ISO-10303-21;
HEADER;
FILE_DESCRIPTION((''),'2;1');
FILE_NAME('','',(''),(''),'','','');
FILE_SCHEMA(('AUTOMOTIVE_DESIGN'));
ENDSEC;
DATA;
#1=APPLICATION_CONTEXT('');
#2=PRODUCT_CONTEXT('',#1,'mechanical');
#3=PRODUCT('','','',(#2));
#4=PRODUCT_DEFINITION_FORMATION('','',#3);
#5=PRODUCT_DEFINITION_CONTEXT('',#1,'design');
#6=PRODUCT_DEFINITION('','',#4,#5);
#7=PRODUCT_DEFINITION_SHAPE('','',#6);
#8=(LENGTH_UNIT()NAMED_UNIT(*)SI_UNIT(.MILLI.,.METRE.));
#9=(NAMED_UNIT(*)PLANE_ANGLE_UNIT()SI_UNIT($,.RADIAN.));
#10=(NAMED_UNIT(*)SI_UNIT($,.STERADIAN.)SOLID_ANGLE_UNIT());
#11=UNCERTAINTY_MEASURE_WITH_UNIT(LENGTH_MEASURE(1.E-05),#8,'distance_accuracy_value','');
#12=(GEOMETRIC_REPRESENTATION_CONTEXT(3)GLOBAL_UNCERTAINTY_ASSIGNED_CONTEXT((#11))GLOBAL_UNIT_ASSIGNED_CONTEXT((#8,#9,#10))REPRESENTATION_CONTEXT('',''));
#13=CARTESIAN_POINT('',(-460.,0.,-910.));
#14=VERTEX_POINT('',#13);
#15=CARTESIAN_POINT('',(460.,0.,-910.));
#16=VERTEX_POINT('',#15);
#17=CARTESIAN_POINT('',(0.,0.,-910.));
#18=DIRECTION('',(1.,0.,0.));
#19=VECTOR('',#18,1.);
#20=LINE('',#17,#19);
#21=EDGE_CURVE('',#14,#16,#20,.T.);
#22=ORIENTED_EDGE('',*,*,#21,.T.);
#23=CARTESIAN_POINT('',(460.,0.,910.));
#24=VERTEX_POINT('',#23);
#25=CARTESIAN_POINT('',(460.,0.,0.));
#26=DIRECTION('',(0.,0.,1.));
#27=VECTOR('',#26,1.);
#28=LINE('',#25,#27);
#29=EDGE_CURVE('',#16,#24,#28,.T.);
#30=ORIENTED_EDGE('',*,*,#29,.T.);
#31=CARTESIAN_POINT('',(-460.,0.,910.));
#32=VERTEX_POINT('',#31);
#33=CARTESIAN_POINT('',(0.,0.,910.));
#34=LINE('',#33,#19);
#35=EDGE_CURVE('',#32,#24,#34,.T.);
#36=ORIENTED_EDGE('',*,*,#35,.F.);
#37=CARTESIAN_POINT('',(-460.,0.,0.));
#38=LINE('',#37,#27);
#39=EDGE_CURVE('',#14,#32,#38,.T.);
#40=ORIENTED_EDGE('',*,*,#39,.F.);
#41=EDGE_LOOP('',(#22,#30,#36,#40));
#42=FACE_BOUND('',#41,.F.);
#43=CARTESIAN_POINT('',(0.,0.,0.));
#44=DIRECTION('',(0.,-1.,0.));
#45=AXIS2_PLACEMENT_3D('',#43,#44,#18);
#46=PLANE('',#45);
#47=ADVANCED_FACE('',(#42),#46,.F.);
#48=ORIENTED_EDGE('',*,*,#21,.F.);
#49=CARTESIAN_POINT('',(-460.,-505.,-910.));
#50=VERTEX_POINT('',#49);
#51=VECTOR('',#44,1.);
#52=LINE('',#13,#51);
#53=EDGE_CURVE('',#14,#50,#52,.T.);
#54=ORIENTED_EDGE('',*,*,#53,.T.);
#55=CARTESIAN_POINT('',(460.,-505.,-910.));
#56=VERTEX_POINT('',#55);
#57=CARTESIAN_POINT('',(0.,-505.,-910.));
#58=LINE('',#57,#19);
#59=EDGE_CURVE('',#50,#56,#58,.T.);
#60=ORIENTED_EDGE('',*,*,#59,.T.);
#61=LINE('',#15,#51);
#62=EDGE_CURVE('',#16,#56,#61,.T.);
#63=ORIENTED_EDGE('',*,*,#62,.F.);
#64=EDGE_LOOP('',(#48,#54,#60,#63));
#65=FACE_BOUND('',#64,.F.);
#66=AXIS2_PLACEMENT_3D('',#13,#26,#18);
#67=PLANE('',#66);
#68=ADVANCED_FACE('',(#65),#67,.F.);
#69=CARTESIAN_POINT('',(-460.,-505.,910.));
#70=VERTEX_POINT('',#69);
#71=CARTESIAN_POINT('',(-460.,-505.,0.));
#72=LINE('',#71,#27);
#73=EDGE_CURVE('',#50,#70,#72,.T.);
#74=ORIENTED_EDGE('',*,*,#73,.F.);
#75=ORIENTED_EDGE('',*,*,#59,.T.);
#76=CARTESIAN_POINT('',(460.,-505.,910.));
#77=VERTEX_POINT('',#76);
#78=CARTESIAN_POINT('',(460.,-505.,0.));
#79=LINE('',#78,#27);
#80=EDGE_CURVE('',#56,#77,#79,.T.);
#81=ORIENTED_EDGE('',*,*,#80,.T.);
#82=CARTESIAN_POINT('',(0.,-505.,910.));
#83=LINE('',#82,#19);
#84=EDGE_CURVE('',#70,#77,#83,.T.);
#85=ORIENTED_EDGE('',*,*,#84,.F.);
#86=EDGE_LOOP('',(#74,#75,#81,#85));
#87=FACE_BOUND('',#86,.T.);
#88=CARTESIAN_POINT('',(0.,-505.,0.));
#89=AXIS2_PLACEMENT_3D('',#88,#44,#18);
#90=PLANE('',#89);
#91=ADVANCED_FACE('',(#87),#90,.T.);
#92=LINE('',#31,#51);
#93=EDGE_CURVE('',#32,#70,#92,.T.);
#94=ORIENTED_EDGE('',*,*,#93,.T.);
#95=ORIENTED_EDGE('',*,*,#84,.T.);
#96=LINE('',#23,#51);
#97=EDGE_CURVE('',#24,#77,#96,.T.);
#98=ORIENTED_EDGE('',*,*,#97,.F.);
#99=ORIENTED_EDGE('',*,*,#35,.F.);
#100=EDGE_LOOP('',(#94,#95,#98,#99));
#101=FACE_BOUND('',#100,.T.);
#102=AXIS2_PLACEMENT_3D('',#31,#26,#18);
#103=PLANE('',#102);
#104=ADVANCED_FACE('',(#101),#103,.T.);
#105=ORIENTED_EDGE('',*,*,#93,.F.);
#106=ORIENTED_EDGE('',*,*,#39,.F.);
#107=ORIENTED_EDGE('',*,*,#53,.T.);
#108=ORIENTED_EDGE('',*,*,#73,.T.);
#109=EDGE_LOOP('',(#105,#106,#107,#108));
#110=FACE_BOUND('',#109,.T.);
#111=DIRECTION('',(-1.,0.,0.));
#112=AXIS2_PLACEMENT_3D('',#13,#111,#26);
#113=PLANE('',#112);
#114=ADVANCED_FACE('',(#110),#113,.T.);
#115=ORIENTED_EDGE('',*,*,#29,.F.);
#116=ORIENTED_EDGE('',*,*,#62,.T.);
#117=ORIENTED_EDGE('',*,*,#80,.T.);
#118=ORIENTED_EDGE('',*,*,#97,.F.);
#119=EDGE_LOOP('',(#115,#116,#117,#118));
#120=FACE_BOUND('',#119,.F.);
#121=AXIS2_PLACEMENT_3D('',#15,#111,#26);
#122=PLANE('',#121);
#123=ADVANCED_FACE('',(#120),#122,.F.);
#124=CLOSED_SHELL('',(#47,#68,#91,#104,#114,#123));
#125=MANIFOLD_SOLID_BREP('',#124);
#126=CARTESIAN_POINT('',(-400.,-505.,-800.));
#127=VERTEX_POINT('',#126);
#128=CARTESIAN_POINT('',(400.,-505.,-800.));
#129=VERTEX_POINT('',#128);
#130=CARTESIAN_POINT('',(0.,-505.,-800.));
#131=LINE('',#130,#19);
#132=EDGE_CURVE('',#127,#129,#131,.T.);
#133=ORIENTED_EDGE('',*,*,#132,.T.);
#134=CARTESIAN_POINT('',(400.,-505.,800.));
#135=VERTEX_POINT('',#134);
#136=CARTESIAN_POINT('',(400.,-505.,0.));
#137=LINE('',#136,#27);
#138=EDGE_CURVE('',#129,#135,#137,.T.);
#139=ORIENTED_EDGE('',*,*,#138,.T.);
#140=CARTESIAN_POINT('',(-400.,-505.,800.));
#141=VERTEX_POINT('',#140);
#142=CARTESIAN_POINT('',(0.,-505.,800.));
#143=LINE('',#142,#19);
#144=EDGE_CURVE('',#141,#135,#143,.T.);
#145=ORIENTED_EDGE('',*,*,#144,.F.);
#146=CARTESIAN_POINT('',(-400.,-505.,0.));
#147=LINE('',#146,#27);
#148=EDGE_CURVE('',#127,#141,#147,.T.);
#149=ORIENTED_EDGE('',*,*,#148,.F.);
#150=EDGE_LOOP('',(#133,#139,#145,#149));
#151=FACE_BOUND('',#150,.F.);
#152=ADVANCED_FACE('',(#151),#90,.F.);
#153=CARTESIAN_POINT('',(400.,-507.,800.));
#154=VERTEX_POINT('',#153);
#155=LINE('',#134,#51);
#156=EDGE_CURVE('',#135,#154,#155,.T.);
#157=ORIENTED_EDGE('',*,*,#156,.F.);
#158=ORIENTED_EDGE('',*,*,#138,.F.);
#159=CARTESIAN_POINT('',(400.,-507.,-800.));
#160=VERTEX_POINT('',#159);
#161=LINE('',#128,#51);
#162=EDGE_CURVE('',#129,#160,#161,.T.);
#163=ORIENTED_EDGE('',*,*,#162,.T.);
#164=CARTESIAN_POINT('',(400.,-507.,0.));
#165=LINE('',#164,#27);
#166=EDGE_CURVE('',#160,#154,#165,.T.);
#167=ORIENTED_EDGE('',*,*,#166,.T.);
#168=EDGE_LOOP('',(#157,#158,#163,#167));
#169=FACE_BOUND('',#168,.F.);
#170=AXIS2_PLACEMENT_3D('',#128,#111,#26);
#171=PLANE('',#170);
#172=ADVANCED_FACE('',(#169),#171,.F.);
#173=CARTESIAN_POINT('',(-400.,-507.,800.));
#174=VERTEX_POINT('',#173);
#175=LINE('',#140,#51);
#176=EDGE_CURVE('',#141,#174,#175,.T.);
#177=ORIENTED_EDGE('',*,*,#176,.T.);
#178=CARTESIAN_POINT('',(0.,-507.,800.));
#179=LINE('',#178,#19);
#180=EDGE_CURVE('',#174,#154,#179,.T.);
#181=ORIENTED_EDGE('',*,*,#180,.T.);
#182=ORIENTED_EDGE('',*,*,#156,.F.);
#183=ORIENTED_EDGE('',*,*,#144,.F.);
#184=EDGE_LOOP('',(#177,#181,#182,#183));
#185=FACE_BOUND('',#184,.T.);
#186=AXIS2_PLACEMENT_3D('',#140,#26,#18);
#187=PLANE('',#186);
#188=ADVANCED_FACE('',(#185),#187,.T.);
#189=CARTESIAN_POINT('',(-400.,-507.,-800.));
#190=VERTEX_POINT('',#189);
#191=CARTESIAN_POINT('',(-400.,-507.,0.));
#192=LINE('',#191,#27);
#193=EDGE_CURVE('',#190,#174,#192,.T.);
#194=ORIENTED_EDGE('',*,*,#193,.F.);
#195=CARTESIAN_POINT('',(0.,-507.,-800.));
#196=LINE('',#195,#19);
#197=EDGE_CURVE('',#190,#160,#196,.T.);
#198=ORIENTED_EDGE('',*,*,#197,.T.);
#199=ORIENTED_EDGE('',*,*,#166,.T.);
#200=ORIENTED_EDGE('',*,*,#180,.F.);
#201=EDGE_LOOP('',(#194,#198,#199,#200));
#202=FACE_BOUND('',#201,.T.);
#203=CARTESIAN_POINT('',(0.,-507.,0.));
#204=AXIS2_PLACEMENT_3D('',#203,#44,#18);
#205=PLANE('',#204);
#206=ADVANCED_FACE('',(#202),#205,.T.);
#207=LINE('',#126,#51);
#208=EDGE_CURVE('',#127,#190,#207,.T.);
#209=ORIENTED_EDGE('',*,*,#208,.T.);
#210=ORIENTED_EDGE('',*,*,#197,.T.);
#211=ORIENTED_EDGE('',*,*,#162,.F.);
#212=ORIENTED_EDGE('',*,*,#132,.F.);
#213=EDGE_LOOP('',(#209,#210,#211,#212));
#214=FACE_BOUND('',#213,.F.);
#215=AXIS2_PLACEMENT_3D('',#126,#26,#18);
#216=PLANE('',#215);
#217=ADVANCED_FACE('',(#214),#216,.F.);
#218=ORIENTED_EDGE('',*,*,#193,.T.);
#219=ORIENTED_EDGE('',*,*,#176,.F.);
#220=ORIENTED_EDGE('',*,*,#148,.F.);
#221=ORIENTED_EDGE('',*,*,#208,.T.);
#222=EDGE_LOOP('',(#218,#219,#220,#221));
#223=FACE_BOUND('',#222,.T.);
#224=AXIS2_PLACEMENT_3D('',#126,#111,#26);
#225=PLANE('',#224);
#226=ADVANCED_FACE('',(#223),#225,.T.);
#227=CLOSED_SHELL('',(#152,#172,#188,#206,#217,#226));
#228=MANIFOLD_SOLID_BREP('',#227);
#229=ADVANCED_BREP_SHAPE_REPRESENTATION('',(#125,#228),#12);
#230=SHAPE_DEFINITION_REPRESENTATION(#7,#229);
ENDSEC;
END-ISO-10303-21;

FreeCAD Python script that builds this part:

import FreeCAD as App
import Part
import Sketcher

V = App.Vector


def add_polygon(sketch, points):
    """Adds a closed chain of lines whose ends are joined by coincident constraints."""
    first, n = sketch.GeometryCount, len(points)
    for a, b in zip(points, points[1:] + points[:1]):
        sketch.addGeometry(Part.LineSegment(App.Vector(*a, 0), App.Vector(*b, 0)), False)
    for i in range(n):
        sketch.addConstraint(Sketcher.Constraint("Coincident", first + i, 2, first + (i + 1) % n, 1))

doc = App.newDocument("Part")
body = doc.addObject("PartDesign::Body", "Body")

# Sketch on XZ plane
sketch1 = body.newObject("Sketcher::SketchObject", "Sketch")
sketch1.AttachmentSupport = (doc.getObject("XZ_Plane"), [""])
sketch1.MapMode = "FlatFace"
add_polygon(sketch1, [(-460, 910), (-460, -910), (460, -910), (460, 910)])  # lines 0-3
sketch1.addConstraint(Sketcher.Constraint("Vertical", 0))
sketch1.addConstraint(Sketcher.Constraint("Horizontal", 1))
sketch1.addConstraint(Sketcher.Constraint("Vertical", 2))
sketch1.addConstraint(Sketcher.Constraint("Horizontal", 3))
sketch1.addConstraint(Sketcher.Constraint("Symmetric", 0, 2, 2, 2, -1, 1))
sketch1.addConstraint(Sketcher.Constraint("DistanceX", 1, 1, 1, 2, 920.0))
sketch1.addConstraint(Sketcher.Constraint("DistanceY", 0, 2, 0, 1, 1820.0))
pad1 = body.newObject("PartDesign::Pad", "Pad")
pad1.Profile = sketch1
pad1.Length = 505
body2 = doc.addObject("PartDesign::Body", "Body001")

# Sketch on XZ plane
sketch2 = body2.newObject("Sketcher::SketchObject", "Sketch001")
sketch2.AttachmentSupport = (doc.getObject("XZ_Plane001"), [""])
sketch2.MapMode = "FlatFace"
sketch2.AttachmentOffset = App.Placement(V(0, 0, 505), App.Rotation())
add_polygon(sketch2, [(-400, 800), (-400, -800), (400, -800), (400, 800)])  # lines 0-3
sketch2.addConstraint(Sketcher.Constraint("Vertical", 0))
sketch2.addConstraint(Sketcher.Constraint("Horizontal", 1))
sketch2.addConstraint(Sketcher.Constraint("Vertical", 2))
sketch2.addConstraint(Sketcher.Constraint("Horizontal", 3))
sketch2.addConstraint(Sketcher.Constraint("Symmetric", 0, 2, 2, 2, -1, 1))
sketch2.addConstraint(Sketcher.Constraint("DistanceX", 1, 1, 1, 2, 800.0))
sketch2.addConstraint(Sketcher.Constraint("DistanceY", 0, 2, 0, 1, 1600.0))
pad2 = body2.newObject("PartDesign::Pad", "Pad001")
pad2.Profile = sketch2
pad2.Length = 2

doc.recompute()
